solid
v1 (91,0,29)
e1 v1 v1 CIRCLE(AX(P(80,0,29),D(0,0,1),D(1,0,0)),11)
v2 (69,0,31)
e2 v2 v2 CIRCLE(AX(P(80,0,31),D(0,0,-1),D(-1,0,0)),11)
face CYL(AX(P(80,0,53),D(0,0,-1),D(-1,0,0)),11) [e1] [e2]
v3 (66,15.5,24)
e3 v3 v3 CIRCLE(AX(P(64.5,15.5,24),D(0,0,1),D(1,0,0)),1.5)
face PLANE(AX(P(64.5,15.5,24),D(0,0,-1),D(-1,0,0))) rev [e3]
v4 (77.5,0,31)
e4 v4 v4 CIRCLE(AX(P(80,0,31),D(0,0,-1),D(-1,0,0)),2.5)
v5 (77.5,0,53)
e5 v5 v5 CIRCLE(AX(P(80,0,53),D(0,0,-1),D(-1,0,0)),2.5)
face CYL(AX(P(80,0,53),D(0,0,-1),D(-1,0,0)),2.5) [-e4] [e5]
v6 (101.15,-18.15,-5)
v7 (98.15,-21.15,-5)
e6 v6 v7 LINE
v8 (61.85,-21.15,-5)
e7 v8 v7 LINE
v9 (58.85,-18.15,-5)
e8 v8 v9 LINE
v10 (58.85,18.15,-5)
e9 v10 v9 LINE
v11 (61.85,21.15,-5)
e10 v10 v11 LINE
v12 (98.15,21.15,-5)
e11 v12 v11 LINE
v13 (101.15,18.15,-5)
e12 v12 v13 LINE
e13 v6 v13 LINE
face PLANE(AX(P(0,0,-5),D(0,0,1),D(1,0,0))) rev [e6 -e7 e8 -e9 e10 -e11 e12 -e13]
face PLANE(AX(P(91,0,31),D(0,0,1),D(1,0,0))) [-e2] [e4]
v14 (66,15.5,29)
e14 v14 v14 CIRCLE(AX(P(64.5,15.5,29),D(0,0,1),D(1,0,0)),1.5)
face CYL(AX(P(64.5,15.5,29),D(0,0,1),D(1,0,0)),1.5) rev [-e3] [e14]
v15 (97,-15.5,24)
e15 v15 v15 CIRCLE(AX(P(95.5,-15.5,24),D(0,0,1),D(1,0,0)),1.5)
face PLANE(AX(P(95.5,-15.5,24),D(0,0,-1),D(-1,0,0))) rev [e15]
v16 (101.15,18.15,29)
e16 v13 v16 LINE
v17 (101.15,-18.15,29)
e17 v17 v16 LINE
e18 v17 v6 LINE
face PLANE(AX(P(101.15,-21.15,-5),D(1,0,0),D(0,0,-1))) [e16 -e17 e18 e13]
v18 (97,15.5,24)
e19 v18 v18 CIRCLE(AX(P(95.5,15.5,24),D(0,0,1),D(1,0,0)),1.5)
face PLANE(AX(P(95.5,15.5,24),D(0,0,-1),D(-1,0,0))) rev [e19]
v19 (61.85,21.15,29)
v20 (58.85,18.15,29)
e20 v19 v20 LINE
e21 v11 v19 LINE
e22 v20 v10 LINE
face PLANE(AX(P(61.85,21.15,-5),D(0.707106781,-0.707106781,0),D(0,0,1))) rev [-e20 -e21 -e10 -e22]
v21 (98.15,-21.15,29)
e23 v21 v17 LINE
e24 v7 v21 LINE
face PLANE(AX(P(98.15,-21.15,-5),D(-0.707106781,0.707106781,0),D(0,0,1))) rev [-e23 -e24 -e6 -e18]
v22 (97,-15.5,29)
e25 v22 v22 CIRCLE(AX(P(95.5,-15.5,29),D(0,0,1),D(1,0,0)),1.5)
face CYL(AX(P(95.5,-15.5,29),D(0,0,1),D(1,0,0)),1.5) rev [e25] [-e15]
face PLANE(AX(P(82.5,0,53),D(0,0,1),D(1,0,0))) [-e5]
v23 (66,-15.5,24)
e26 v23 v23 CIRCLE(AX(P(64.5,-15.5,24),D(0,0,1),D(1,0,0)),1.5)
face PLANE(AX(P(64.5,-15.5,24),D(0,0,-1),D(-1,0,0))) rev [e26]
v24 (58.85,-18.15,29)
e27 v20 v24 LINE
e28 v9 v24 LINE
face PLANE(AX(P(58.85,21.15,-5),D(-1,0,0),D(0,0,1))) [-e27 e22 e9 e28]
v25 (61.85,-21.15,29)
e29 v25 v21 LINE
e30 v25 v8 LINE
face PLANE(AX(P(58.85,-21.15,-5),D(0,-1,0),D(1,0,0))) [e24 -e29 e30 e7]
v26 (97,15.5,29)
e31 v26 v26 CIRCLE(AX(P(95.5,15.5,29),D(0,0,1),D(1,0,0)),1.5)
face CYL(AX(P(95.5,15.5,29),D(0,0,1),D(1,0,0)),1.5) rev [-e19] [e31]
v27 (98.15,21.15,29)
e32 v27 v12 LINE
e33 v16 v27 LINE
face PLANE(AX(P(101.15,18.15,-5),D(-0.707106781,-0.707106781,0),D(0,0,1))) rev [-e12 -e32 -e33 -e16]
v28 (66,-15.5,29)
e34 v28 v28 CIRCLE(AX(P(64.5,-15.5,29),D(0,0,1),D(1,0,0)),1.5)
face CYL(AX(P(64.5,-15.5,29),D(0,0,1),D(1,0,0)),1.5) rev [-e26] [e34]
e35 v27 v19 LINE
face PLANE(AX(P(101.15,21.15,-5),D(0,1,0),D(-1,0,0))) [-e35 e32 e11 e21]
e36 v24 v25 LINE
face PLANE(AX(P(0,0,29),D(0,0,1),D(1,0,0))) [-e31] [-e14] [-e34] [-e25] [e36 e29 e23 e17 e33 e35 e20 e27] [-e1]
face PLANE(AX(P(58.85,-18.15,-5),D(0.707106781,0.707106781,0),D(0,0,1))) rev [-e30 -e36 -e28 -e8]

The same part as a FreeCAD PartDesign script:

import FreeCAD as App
import Part
import Sketcher

V = App.Vector
Q = App.Units.Quantity


def edges_at(feature, points):
    """Names of the edges that pass closest to the given points."""
    edges = feature.Shape.Edges
    near = lambda p: min(range(len(edges)), key=lambda i: edges[i].distToShape(Part.Vertex(*p))[0])
    return sorted({f"Edge{near(p) + 1}" for p in points})

doc = App.newDocument("Part")
body = doc.addObject("PartDesign::Body", "Body")

# Sketch on XY plane
sketch1 = body.newObject("Sketcher::SketchObject", "Sketch")
sketch1.AttachmentSupport = (doc.getObject("XY_Plane"), [""])
sketch1.MapMode = "FlatFace"
sketch1.AttachmentOffset = App.Placement(V(0, 0, 29), App.Rotation())
sketch1.addGeometry(Part.LineSegment(V(59, 21, 0), V(59, -21, 0)), False)
sketch1.addGeometry(Part.LineSegment(V(59, -21, 0), V(101, -21, 0)), False)
sketch1.addGeometry(Part.LineSegment(V(101, -21, 0), V(101, 21, 0)), False)
sketch1.addGeometry(Part.LineSegment(V(101, 21, 0), V(59, 21, 0)), False)
sketch1.addConstraint(Sketcher.Constraint("Coincident", 0, 2, 1, 1))
sketch1.addConstraint(Sketcher.Constraint("Coincident", 1, 2, 2, 1))
sketch1.addConstraint(Sketcher.Constraint("Coincident", 2, 2, 3, 1))
sketch1.addConstraint(Sketcher.Constraint("Coincident", 3, 2, 0, 1))
sketch1.addConstraint(Sketcher.Constraint("Vertical", 0))
sketch1.addConstraint(Sketcher.Constraint("Horizontal", 1))
sketch1.addConstraint(Sketcher.Constraint("Vertical", 2))
sketch1.addConstraint(Sketcher.Constraint("Horizontal", 3))
sketch1.addConstraint(Sketcher.Constraint("Equal", 3, 0))
sketch1.addConstraint(Sketcher.Constraint("DistanceX", 1, 1, 1, 2, Q("42.3 mm")))
sketch1.addConstraint(Sketcher.Constraint("DistanceX", -1, 1, 0, 2, Q("58.85 mm")))
sketch1.addConstraint(Sketcher.Constraint("DistanceY", 0, 2, -1, 1, Q("21.15 mm")))
pad1 = body.newObject("PartDesign::Pad", "Pad")
pad1.Profile = sketch1
pad1.Length = 34
pad1.Reversed = True

# Sketch on XZ plane
sketch2 = body.newObject("Sketcher::SketchObject", "Sketch001")
sketch2.AttachmentSupport = (doc.getObject("XZ_Plane"), [""])
sketch2.MapMode = "FlatFace"
sketch2.addGeometry(Part.LineSegment(V(82.5, 53, 0), V(80, 53, 0)), False)
sketch2.addGeometry(Part.LineSegment(V(80, 53, 0), V(80, 29, 0)), False)
sketch2.addGeometry(Part.LineSegment(V(80, 29, 0), V(91, 29, 0)), False)
sketch2.addGeometry(Part.LineSegment(V(91, 29, 0), V(91, 31, 0)), False)
sketch2.addGeometry(Part.LineSegment(V(91, 31, 0), V(82.5, 31, 0)), False)
sketch2.addGeometry(Part.LineSegment(V(82.5, 31, 0), V(82.5, 53, 0)), False)
sketch2.addGeometry(Part.LineSegment(V(80, 53, 0), V(80, 29, 0)), True)  # axis
sketch2.addConstraint(Sketcher.Constraint("Coincident", 0, 2, 1, 1))
sketch2.addConstraint(Sketcher.Constraint("Coincident", 1, 2, 2, 1))
sketch2.addConstraint(Sketcher.Constraint("Coincident", 2, 2, 3, 1))
sketch2.addConstraint(Sketcher.Constraint("Coincident", 3, 2, 4, 1))
sketch2.addConstraint(Sketcher.Constraint("Coincident", 4, 2, 5, 1))
sketch2.addConstraint(Sketcher.Constraint("Coincident", 5, 2, 0, 1))
sketch2.addConstraint(Sketcher.Constraint("Horizontal", 0))
sketch2.addConstraint(Sketcher.Constraint("Vertical", 1))
sketch2.addConstraint(Sketcher.Constraint("Horizontal", 2))
sketch2.addConstraint(Sketcher.Constraint("Vertical", 3))
sketch2.addConstraint(Sketcher.Constraint("Horizontal", 4))
sketch2.addConstraint(Sketcher.Constraint("Vertical", 5))
sketch2.addConstraint(Sketcher.Constraint("Vertical", 6))
sketch2.addConstraint(Sketcher.Constraint("Coincident", 6, 1, 0, 2))
sketch2.addConstraint(Sketcher.Constraint("Horizontal", 2, 2, 6, 2))
sketch2.addConstraint(Sketcher.Constraint("DistanceX", 2, 1, 2, 2, Q("11 mm")))
sketch2.addConstraint(Sketcher.Constraint("DistanceY", 1, 2, 1, 1, Q("24 mm")))
sketch2.addConstraint(Sketcher.Constraint("DistanceY", 3, 1, 3, 2, Q("2 mm")))
sketch2.addConstraint(Sketcher.Constraint("DistanceX", 0, 2, 0, 1, Q("2.5 mm")))
sketch2.addConstraint(Sketcher.Constraint("DistanceX", -1, 1, 0, 2, Q("80 mm")))
sketch2.addConstraint(Sketcher.Constraint("DistanceY", -1, 1, 0, 2, Q("53 mm")))
revolution = body.newObject("PartDesign::Revolution", "Revolution")
revolution.Profile = sketch2
revolution.ReferenceAxis = (sketch2, ["Axis0"])
revolution.Angle = 360

# Sketch on XY plane
sketch3 = body.newObject("Sketcher::SketchObject", "Sketch002")
sketch3.AttachmentSupport = (doc.getObject("XY_Plane"), [""])
sketch3.MapMode = "FlatFace"
sketch3.AttachmentOffset = App.Placement(V(0, 0, 29), App.Rotation())
sketch3.addGeometry(Part.Circle(V(95.5, 15.5, 0), V(0, 0, 1), 1.5), False)
sketch3.addGeometry(Part.Circle(V(95.5, -15.5, 0), V(0, 0, 1), 1.5), False)
sketch3.addGeometry(Part.Circle(V(64.5, -15.5, 0), V(0, 0, 1), 1.5), False)
sketch3.addGeometry(Part.Circle(V(64.5, 15.5, 0), V(0, 0, 1), 1.5), False)
sketch3.addConstraint(Sketcher.Constraint("Equal", 0, 1))
sketch3.addConstraint(Sketcher.Constraint("Equal", 1, 2))
sketch3.addConstraint(Sketcher.Constraint("Equal", 2, 3))
sketch3.addConstraint(Sketcher.Constraint("Symmetric", 0, 3, 1, 3, -1))
sketch3.addConstraint(Sketcher.Constraint("Symmetric", 2, 3, 3, 3, -1))
sketch3.addConstraint(Sketcher.Constraint("Horizontal", 1, 3, 2, 3))
sketch3.addConstraint(Sketcher.Constraint("Diameter", 0, Q("3 mm")))
sketch3.addConstraint(Sketcher.Constraint("DistanceY", 1, 3, 0, 3, Q("31 mm")))
sketch3.addConstraint(Sketcher.Constraint("DistanceX", 2, 3, 1, 3, Q("31 mm")))
sketch3.addConstraint(Sketcher.Constraint("DistanceX", -1, 1, 0, 3, Q("95.5 mm")))
doc.recompute()
hole = body.newObject("PartDesign::Hole", "Hole")
hole.Profile = sketch3
hole.ThreadType = "None"
hole.Diameter = 3
hole.DepthType = "Dimension"
hole.Depth = 5
hole.DrillPoint = "Flat"
doc.recompute()

chamfer = body.newObject("PartDesign::Chamfer", "Chamfer")
chamfer.Base = (hole, edges_at(hole, [
    (58.85, 21.15, 12),
    (101.15, 21.15, 12),
    (101.15, -21.15, 12),
    (58.85, -21.15, 12),
]))
chamfer.Size = 3

doc.recompute()
